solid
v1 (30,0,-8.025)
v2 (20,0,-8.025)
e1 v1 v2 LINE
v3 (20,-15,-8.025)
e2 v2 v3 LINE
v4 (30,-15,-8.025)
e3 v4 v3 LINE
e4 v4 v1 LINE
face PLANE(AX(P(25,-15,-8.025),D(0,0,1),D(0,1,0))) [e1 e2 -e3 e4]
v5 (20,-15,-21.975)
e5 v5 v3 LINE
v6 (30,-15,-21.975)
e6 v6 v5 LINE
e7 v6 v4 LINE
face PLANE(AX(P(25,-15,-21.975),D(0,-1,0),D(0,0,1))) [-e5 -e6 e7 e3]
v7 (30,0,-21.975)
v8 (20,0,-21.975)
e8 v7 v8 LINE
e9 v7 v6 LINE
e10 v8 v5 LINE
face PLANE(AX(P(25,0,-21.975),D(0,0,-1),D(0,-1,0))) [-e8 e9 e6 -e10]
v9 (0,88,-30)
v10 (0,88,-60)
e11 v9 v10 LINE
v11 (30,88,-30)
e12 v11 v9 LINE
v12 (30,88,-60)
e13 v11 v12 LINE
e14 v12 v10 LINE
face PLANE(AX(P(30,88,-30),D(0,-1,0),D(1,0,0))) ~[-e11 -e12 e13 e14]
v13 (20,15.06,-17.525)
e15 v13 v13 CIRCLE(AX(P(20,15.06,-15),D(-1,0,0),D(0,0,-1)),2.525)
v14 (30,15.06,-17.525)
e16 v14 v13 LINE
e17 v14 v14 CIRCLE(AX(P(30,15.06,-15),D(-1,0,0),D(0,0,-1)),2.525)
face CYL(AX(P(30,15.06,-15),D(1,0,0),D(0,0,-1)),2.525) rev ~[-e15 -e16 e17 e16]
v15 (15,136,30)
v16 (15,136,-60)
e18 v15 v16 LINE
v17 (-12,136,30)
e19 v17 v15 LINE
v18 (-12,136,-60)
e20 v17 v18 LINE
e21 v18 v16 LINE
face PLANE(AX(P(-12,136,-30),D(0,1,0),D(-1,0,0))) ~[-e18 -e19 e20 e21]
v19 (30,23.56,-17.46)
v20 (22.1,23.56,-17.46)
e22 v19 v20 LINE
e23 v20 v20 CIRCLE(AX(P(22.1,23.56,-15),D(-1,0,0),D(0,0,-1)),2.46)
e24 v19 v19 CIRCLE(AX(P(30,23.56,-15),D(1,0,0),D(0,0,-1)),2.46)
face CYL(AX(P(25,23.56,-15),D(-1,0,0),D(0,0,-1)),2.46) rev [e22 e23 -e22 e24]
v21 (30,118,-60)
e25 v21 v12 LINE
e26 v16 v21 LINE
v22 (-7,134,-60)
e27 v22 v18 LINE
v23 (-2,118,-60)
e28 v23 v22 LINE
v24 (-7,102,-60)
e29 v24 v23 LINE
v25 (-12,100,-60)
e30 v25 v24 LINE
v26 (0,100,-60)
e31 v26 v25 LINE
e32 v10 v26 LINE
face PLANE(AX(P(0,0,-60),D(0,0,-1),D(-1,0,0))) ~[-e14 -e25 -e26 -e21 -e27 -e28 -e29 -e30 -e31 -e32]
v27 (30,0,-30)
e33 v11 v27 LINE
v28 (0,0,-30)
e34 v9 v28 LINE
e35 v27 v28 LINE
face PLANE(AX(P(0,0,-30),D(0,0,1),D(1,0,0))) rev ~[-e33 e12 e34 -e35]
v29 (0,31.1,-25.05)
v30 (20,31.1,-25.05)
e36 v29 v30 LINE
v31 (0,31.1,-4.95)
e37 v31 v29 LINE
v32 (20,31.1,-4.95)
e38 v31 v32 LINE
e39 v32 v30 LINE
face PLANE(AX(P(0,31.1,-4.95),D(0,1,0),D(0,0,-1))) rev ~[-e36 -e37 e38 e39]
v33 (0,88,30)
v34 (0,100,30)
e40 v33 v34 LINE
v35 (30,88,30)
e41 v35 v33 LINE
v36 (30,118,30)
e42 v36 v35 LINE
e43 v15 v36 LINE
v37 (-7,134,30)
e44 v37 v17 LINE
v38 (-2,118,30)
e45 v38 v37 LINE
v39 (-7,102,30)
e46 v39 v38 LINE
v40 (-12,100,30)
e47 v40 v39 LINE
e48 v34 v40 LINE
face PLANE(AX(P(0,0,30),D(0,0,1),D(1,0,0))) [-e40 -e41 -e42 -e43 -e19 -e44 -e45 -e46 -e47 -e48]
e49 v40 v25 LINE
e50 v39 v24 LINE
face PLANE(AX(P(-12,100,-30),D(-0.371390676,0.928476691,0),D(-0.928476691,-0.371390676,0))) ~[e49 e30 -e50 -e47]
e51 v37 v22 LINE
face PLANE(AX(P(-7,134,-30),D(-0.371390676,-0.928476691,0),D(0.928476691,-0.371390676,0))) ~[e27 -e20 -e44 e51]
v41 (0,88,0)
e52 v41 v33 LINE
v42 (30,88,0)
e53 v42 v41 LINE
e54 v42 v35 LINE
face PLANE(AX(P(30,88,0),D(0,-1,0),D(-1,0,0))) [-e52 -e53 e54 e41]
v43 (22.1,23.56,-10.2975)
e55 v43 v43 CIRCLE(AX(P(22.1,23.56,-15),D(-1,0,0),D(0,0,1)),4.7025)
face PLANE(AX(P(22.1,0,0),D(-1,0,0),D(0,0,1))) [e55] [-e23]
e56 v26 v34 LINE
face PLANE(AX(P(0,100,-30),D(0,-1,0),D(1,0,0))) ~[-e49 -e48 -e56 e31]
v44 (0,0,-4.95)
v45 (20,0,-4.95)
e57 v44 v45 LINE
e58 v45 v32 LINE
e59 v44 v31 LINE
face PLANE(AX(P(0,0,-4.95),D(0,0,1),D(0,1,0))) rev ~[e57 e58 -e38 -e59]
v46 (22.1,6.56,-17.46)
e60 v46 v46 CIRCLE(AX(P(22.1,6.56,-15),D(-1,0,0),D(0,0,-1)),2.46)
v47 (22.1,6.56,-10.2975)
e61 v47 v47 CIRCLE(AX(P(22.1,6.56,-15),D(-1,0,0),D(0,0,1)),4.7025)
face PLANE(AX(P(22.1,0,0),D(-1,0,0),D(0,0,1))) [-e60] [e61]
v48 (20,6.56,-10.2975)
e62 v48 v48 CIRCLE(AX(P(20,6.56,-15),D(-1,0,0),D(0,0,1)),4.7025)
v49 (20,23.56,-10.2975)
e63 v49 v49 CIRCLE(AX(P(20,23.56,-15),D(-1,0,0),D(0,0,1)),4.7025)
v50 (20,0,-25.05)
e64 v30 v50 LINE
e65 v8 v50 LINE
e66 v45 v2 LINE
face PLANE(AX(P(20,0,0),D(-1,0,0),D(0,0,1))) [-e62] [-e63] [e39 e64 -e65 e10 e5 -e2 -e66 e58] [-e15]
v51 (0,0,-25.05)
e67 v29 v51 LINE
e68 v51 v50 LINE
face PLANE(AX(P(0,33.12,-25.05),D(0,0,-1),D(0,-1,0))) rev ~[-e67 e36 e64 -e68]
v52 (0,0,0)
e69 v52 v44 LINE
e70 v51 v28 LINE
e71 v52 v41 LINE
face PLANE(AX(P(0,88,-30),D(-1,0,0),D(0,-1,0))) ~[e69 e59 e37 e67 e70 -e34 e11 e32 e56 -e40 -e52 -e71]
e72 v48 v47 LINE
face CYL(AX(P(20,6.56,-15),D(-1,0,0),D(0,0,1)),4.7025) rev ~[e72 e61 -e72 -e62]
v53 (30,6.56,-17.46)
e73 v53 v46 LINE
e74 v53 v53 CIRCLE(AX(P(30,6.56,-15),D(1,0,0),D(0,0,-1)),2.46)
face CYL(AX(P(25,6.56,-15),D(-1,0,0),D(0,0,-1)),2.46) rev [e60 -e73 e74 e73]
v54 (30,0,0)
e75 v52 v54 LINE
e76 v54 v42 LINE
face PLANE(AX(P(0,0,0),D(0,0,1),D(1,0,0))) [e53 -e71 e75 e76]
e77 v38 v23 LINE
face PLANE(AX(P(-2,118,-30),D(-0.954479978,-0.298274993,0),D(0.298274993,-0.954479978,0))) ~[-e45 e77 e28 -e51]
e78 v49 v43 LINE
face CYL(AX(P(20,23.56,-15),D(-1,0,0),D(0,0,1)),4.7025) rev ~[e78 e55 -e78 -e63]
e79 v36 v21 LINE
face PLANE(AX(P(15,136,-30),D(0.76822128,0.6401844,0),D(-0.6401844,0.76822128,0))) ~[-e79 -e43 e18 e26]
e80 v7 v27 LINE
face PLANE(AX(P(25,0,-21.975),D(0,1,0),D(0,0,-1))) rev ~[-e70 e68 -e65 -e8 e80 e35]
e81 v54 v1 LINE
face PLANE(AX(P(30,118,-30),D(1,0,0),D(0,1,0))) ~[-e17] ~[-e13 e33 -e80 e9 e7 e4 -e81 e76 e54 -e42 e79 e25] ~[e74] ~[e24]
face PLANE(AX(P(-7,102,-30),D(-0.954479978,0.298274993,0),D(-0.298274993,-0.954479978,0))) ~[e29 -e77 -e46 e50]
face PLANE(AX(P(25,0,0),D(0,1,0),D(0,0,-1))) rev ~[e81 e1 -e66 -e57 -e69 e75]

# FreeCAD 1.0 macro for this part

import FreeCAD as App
import Part
import Sketcher
Q = App.Units.Quantity

doc = App.newDocument("Part")
body = doc.addObject("PartDesign::Body", "Body")

# Sketch on XY plane
sketch1 = body.newObject("Sketcher::SketchObject", "Sketch")
sketch1.AttachmentSupport = (doc.getObject("XY_Plane"), [""])
sketch1.MapMode = "FlatFace"
sketch1.addGeometry([
    Part.LineSegment(App.Vector(0, 40, 0), App.Vector(0, 0, 0)),
    Part.LineSegment(App.Vector(0, 0, 0), App.Vector(25, 0, 0)),
    Part.LineSegment(App.Vector(25, 0, 0), App.Vector(25, 40, 0)),
    Part.LineSegment(App.Vector(25, 40, 0), App.Vector(0, 40, 0)),
], False)
sketch1.addConstraint([
    Sketcher.Constraint("Coincident", 0, 2, 1, 1),
    Sketcher.Constraint("Coincident", 1, 2, 2, 1),
    Sketcher.Constraint("Coincident", 2, 2, 3, 1),
    Sketcher.Constraint("Coincident", 3, 2, 0, 1),
    Sketcher.Constraint("Vertical", 0),
    Sketcher.Constraint("Horizontal", 1),
    Sketcher.Constraint("Vertical", 2),
    Sketcher.Constraint("Horizontal", 3),
    Sketcher.Constraint("Coincident", 0, 2, -1, 1),
    Sketcher.Constraint("DistanceX", 1, 1, 1, 2, Q("25 mm")),
    Sketcher.Constraint("DistanceY", 0, 2, 0, 1, Q("40 mm")),
])
pad1 = body.newObject("PartDesign::Pad", "Pad")
pad1.Profile = sketch1
pad1.Length = 30
pad1.Reversed = True

# Sketch on YZ plane
sketch2 = body.newObject("Sketcher::SketchObject", "Sketch001")
sketch2.AttachmentSupport = (doc.getObject("YZ_Plane"), [""])
sketch2.MapMode = "FlatFace"
sketch2.AttachmentOffset = App.Placement(App.Vector(0, 0, 25), App.Rotation())
sketch2.addGeometry(Part.Circle(App.Vector(6.6, -15, 0), App.Vector(0, 0, 1), 2.5), False)
sketch2.addConstraint([
    Sketcher.Constraint("Diameter", 0, Q("4.92 mm")),
    Sketcher.Constraint("DistanceY", 0, 3, -1, 1, Q("15 mm")),
    Sketcher.Constraint("DistanceX", -1, 1, 0, 3, Q("6.56 mm")),
])
pocket1 = body.newObject("PartDesign::Pocket", "Pocket")
pocket1.Profile = sketch2
pocket1.Length = 30

# Sketch on YZ plane
sketch3 = body.newObject("Sketcher::SketchObject", "Sketch002")
sketch3.AttachmentSupport = (doc.getObject("YZ_Plane"), [""])
sketch3.MapMode = "FlatFace"
sketch3.addGeometry([
    Part.LineSegment(App.Vector(0, -25, 0), App.Vector(0, -5, 0)),
    Part.LineSegment(App.Vector(0, -5, 0), App.Vector(33, -5, 0)),
    Part.LineSegment(App.Vector(33, -5, 0), App.Vector(33, -25, 0)),
    Part.LineSegment(App.Vector(33, -25, 0), App.Vector(0, -25, 0)),
], False)
sketch3.addConstraint([
    Sketcher.Constraint("Coincident", 0, 2, 1, 1),
    Sketcher.Constraint("Coincident", 1, 2, 2, 1),
    Sketcher.Constraint("Coincident", 2, 2, 3, 1),
    Sketcher.Constraint("Coincident", 3, 2, 0, 1),
    Sketcher.Constraint("Vertical", 0),
    Sketcher.Constraint("Horizontal", 1),
    Sketcher.Constraint("Vertical", 2),
    Sketcher.Constraint("Horizontal", 3),
    Sketcher.Constraint("PointOnObject", 0, 2, -2),
    Sketcher.Constraint("DistanceY", 0, 1, 0, 2, Q("20.1 mm")),
    Sketcher.Constraint("DistanceX", 1, 1, 1, 2, Q("33.12 mm")),
    Sketcher.Constraint("DistanceY", 0, 2, -1, 1, Q("4.95 mm")),
])
pocket2 = body.newObject("PartDesign::Pocket", "Pocket001")
pocket2.Profile = sketch3
pocket2.Length = 20
pocket2.Reversed = True

# Sketch on XZ plane
sketch4 = body.newObject("Sketcher::SketchObject", "Sketch003")
sketch4.AttachmentSupport = (doc.getObject("XZ_Plane"), [""])
sketch4.MapMode = "FlatFace"
sketch4.addGeometry([
    Part.LineSegment(App.Vector(25, -8, 0), App.Vector(20, -8, 0)),
    Part.LineSegment(App.Vector(20, -8, 0), App.Vector(20, -22, 0)),
    Part.LineSegment(App.Vector(20, -22, 0), App.Vector(25, -22, 0)),
    Part.LineSegment(App.Vector(25, -22, 0), App.Vector(25, -8, 0)),
], False)
sketch4.addConstraint([
    Sketcher.Constraint("Coincident", 0, 2, 1, 1),
    Sketcher.Constraint("Coincident", 1, 2, 2, 1),
    Sketcher.Constraint("Coincident", 2, 2, 3, 1),
    Sketcher.Constraint("Coincident", 3, 2, 0, 1),
    Sketcher.Constraint("Horizontal", 0),
    Sketcher.Constraint("Vertical", 1),
    Sketcher.Constraint("Horizontal", 2),
    Sketcher.Constraint("Vertical", 3),
    Sketcher.Constraint("DistanceY", 1, 2, 1, 1, Q("13.95 mm")),
    Sketcher.Constraint("DistanceX", 0, 2, 0, 1, Q("5 mm")),
    Sketcher.Constraint("DistanceX", -1, 1, 0, 2, Q("20 mm")),
    Sketcher.Constraint("DistanceY", 0, 2, -1, 1, Q("8.025 mm")),
])
pad2 = body.newObject("PartDesign::Pad", "Pad001")
pad2.Profile = sketch4
pad2.Length = 15

# Sketch on YZ plane
sketch5 = body.newObject("Sketcher::SketchObject", "Sketch004")
sketch5.AttachmentSupport = (doc.getObject("YZ_Plane"), [""])
sketch5.MapMode = "FlatFace"
sketch5.AttachmentOffset = App.Placement(App.Vector(0, 0, 20), App.Rotation())
sketch5.addGeometry([
    Part.Circle(App.Vector(6.6, -15, 0), App.Vector(0, 0, 1), 4.7),
    Part.Circle(App.Vector(6.6, -15, 0), App.Vector(0, 0, 1), 2.5),
], False)
sketch5.addConstraint([
    Sketcher.Constraint("Coincident", 1, 3, 0, 3),
    Sketcher.Constraint("Diameter", 0, Q("9.405 mm")),
    Sketcher.Constraint("Diameter", 1, Q("4.92 mm")),
    Sketcher.Constraint("DistanceY", 0, 3, -1, 1, Q("15 mm")),
    Sketcher.Constraint("DistanceX", -1, 1, 0, 3, Q("6.56 mm")),
])
pocket3 = body.newObject("PartDesign::Pocket", "Pocket002")
pocket3.Profile = sketch5
pocket3.Length = 2.1
pocket3.Reversed = True

# Sketch on YZ plane
sketch6 = body.newObject("Sketcher::SketchObject", "Sketch005")
sketch6.AttachmentSupport = (doc.getObject("YZ_Plane"), [""])
sketch6.MapMode = "FlatFace"
sketch6.AttachmentOffset = App.Placement(App.Vector(0, 0, 25), App.Rotation())
sketch6.addGeometry(Part.Circle(App.Vector(23.6, -15, 0), App.Vector(0, 0, 1), 2.5), False)
sketch6.addConstraint([
    Sketcher.Constraint("Diameter", 0, Q("4.92 mm")),
    Sketcher.Constraint("DistanceY", 0, 3, -1, 1, Q("15 mm")),
    Sketcher.Constraint("DistanceX", -1, 1, 0, 3, Q("23.56 mm")),
])
pocket4 = body.newObject("PartDesign::Pocket", "Pocket003")
pocket4.Profile = sketch6
pocket4.Length = 10

# Sketch on YZ plane
sketch7 = body.newObject("Sketcher::SketchObject", "Sketch006")
sketch7.AttachmentSupport = (doc.getObject("YZ_Plane"), [""])
sketch7.MapMode = "FlatFace"
sketch7.AttachmentOffset = App.Placement(App.Vector(0, 0, 20), App.Rotation())
sketch7.addGeometry([
    Part.Circle(App.Vector(23.6, -15, 0), App.Vector(0, 0, 1), 4.7),
    Part.Circle(App.Vector(23.6, -15, 0), App.Vector(0, 0, 1), 2.5),
], False)
sketch7.addConstraint([
    Sketcher.Constraint("Coincident", 1, 3, 0, 3),
    Sketcher.Constraint("Diameter", 0, Q("9.405 mm")),
    Sketcher.Constraint("Diameter", 1, Q("4.92 mm")),
    Sketcher.Constraint("DistanceY", 0, 3, -1, 1, Q("15 mm")),
    Sketcher.Constraint("DistanceX", -1, 1, 0, 3, Q("23.56 mm")),
])
pocket5 = body.newObject("PartDesign::Pocket", "Pocket004")
pocket5.Profile = sketch7
pocket5.Length = 2.1
pocket5.Reversed = True

# Sketch on YZ plane
sketch8 = body.newObject("Sketcher::SketchObject", "Sketch007")
sketch8.AttachmentSupport = (doc.getObject("YZ_Plane"), [""])
sketch8.MapMode = "FlatFace"
sketch8.AttachmentOffset = App.Placement(App.Vector(0, 0, 25), App.Rotation())
sketch8.addGeometry([
    Part.LineSegment(App.Vector(0, -30, 0), App.Vector(40, -30, 0)),  # 0
    Part.LineSegment(App.Vector(40, -30, 0), App.Vector(40, 0, 0)),  # 1
    Part.LineSegment(App.Vector(40, 0, 0), App.Vector(0, 0, 0)),  # 2
    Part.LineSegment(App.Vector(0, 0, 0), App.Vector(0, -8, 0)),  # 3
    Part.LineSegment(App.Vector(0, -8, 0), App.Vector(-15, -8, 0)),  # 4
    Part.LineSegment(App.Vector(-15, -8, 0), App.Vector(-15, -22, 0)),  # 5
    Part.LineSegment(App.Vector(-15, -22, 0), App.Vector(0, -22, 0)),  # 6
    Part.LineSegment(App.Vector(0, -22, 0), App.Vector(0, -30, 0)),  # 7
    Part.Circle(App.Vector(6.6, -15, 0), App.Vector(0, 0, 1), 2.5),  # 8
    Part.Circle(App.Vector(23.6, -15, 0), App.Vector(0, 0, 1), 2.5),  # 9
], False)
sketch8.addConstraint([
    Sketcher.Constraint("Coincident", 0, 2, 1, 1),
    Sketcher.Constraint("Coincident", 1, 2, 2, 1),
    Sketcher.Constraint("Coincident", 2, 2, 3, 1),
    Sketcher.Constraint("Coincident", 3, 2, 4, 1),
    Sketcher.Constraint("Coincident", 4, 2, 5, 1),
    Sketcher.Constraint("Coincident", 5, 2, 6, 1),
    Sketcher.Constraint("Coincident", 6, 2, 7, 1),
    Sketcher.Constraint("Coincident", 7, 2, 0, 1),
    Sketcher.Constraint("Horizontal", 0),
    Sketcher.Constraint("Vertical", 1),
    Sketcher.Constraint("Horizontal", 2),
    Sketcher.Constraint("Vertical", 3),
    Sketcher.Constraint("Horizontal", 4),
    Sketcher.Constraint("Vertical", 5),
    Sketcher.Constraint("Horizontal", 6),
    Sketcher.Constraint("Vertical", 7),
    Sketcher.Constraint("Coincident", 2, 2, -1, 1),
    Sketcher.Constraint("Equal", 8, 9),
    Sketcher.Constraint("PointOnObject", 6, 2, -2),
    Sketcher.Constraint("Horizontal", 8, 3, 9, 3),
    Sketcher.Constraint("Equal", 3, 7),
    Sketcher.Constraint("Diameter", 8, Q("4.92 mm")),
    Sketcher.Constraint("DistanceX", 0, 1, 0, 2, Q("40 mm")),
    Sketcher.Constraint("DistanceX", 4, 2, 4, 1, Q("15 mm")),
    Sketcher.Constraint("DistanceY", 1, 1, 1, 2, Q("30 mm")),
    Sketcher.Constraint("DistanceY", 8, 3, -1, 1, Q("15 mm")),
    Sketcher.Constraint("DistanceX", 8, 3, 9, 3, Q("17 mm")),
    Sketcher.Constraint("DistanceY", 5, 2, 5, 1, Q("13.95 mm")),
    Sketcher.Constraint("DistanceX", -1, 1, 8, 3, Q("6.56 mm")),
])
pad3 = body.newObject("PartDesign::Pad", "Pad002")
pad3.Profile = sketch8
pad3.Length = 5

# Sketch on XZ plane
sketch9 = body.newObject("Sketcher::SketchObject", "Sketch008")
sketch9.AttachmentSupport = (doc.getObject("XZ_Plane"), [""])
sketch9.MapMode = "FlatFace"
sketch9.AttachmentOffset = App.Placement(App.Vector(0, 0, -40), App.Rotation())
sketch9.addGeometry([
    Part.LineSegment(App.Vector(30, -30, 0), App.Vector(0, -30, 0)),
    Part.LineSegment(App.Vector(0, -30, 0), App.Vector(0, 0, 0)),
    Part.LineSegment(App.Vector(0, 0, 0), App.Vector(30, 0, 0)),
    Part.LineSegment(App.Vector(30, 0, 0), App.Vector(30, -30, 0)),
], False)
sketch9.addConstraint([
    Sketcher.Constraint("Coincident", 0, 2, 1, 1),
    Sketcher.Constraint("Coincident", 1, 2, 2, 1),
    Sketcher.Constraint("Coincident", 2, 2, 3, 1),
    Sketcher.Constraint("Coincident", 3, 2, 0, 1),
    Sketcher.Constraint("Horizontal", 0),
    Sketcher.Constraint("Vertical", 1),
    Sketcher.Constraint("Horizontal", 2),
    Sketcher.Constraint("Vertical", 3),
    Sketcher.Constraint("Coincident", 1, 2, -1, 1),
    Sketcher.Constraint("Equal", 2, 1),
    Sketcher.Constraint("DistanceX", 0, 2, 0, 1, Q("30 mm")),
])
pad4 = body.newObject("PartDesign::Pad", "Pad003")
pad4.Profile = sketch9
pad4.Length = 30
pad4.Reversed = True

# Sketch on YZ plane
sketch10 = body.newObject("Sketcher::SketchObject", "Sketch009")
sketch10.AttachmentSupport = (doc.getObject("YZ_Plane"), [""])
sketch10.MapMode = "FlatFace"
sketch10.AttachmentOffset = App.Placement(App.Vector(0, 0, 30), App.Rotation())
sketch10.addGeometry(Part.Circle(App.Vector(15.1, -15, 0), App.Vector(0, 0, 1), 2.5), False)
sketch10.addConstraint([
    Sketcher.Constraint("Diameter", 0, Q("5.05 mm")),
    Sketcher.Constraint("DistanceY", 0, 3, -1, 1, Q("15 mm")),
    Sketcher.Constraint("DistanceX", -1, 1, 0, 3, Q("15.06 mm")),
])
pocket6 = body.newObject("PartDesign::Pocket", "Pocket005")
pocket6.Profile = sketch10
pocket6.Length = 30

# Sketch on XY plane
sketch11 = body.newObject("Sketcher::SketchObject", "Sketch010")
sketch11.AttachmentSupport = (doc.getObject("XY_Plane"), [""])
sketch11.MapMode = "FlatFace"
sketch11.addGeometry([
    Part.LineSegment(App.Vector(0, 70, 0), App.Vector(30, 70, 0)),  # 0
    Part.LineSegment(App.Vector(30, 70, 0), App.Vector(30, 118, 0)),  # 1
    Part.LineSegment(App.Vector(30, 118, 0), App.Vector(15, 136, 0)),  # 2
    Part.LineSegment(App.Vector(15, 136, 0), App.Vector(-12, 136, 0)),  # 3
    Part.LineSegment(App.Vector(-12, 136, 0), App.Vector(-7, 134, 0)),  # 4
    Part.LineSegment(App.Vector(-7, 134, 0), App.Vector(-2, 118, 0)),  # 5
    Part.LineSegment(App.Vector(-2, 118, 0), App.Vector(-7, 102, 0)),  # 6
    Part.LineSegment(App.Vector(-7, 102, 0), App.Vector(-12, 100, 0)),  # 7
    Part.LineSegment(App.Vector(-12, 100, 0), App.Vector(0, 100, 0)),  # 8
    Part.LineSegment(App.Vector(0, 100, 0), App.Vector(0, 70, 0)),  # 9
], False)
sketch11.addConstraint([
    Sketcher.Constraint("Coincident", 0, 2, 1, 1),
    Sketcher.Constraint("Coincident", 1, 2, 2, 1),
    Sketcher.Constraint("Coincident", 2, 2, 3, 1),
    Sketcher.Constraint("Coincident", 3, 2, 4, 1),
    Sketcher.Constraint("Coincident", 4, 2, 5, 1),
    Sketcher.Constraint("Coincident", 5, 2, 6, 1),
    Sketcher.Constraint("Coincident", 6, 2, 7, 1),
    Sketcher.Constraint("Coincident", 7, 2, 8, 1),
    Sketcher.Constraint("Coincident", 8, 2, 9, 1),
    Sketcher.Constraint("Coincident", 9, 2, 0, 1),
    Sketcher.Constraint("Horizontal", 0),
    Sketcher.Constraint("Vertical", 1),
    Sketcher.Constraint("Horizontal", 3),
    Sketcher.Constraint("Horizontal", 8),
    Sketcher.Constraint("Vertical", 9),
    Sketcher.Constraint("PointOnObject", 8, 2, -2),
    Sketcher.Constraint("Horizontal", 1, 2, 5, 2),
    Sketcher.Constraint("Vertical", 4, 2, 6, 2),
    Sketcher.Constraint("Vertical", 3, 2, 7, 2),
    Sketcher.Constraint("Equal", 0, 9),
    Sketcher.Constraint("Equal", 5, 6),
    Sketcher.Constraint("Equal", 4, 7),
    Sketcher.Constraint("DistanceX", 8, 1, 8, 2, Q("12 mm")),
    Sketcher.Constraint("DistanceX", 0, 1, 0, 2, Q("30 mm")),
    Sketcher.Constraint("DistanceX", 3, 2, 3, 1, Q("27 mm")),
    Sketcher.Constraint("DistanceY", 1, 1, 1, 2, Q("48 mm")),
    Sketcher.Constraint("DistanceY", -1, 1, 0, 2, Q("70 mm")),
    Sketcher.Constraint("DistanceX", 4, 2, -1, 1, Q("7 mm")),
    Sketcher.Constraint("DistanceY", -1, 1, 4, 2, Q("134 mm")),
    Sketcher.Constraint("DistanceX", 5, 2, -1, 1, Q("2 mm")),
])
pad5 = body.newObject("PartDesign::Pad", "Pad004")
pad5.Profile = sketch11
pad5.Length = 30
pad5.Reversed = True

# Sketch on YZ plane
sketch12 = body.newObject("Sketcher::SketchObject", "Sketch011")
sketch12.AttachmentSupport = (doc.getObject("YZ_Plane"), [""])
sketch12.MapMode = "FlatFace"
sketch12.addGeometry([
    Part.LineSegment(App.Vector(33.1, -5, 0), App.Vector(33.1, -25.1, 0)),
    Part.LineSegment(App.Vector(33.1, -25.1, 0), App.Vector(31.1, -25.1, 0)),
    Part.LineSegment(App.Vector(31.1, -25.1, 0), App.Vector(31.1, -5, 0)),
    Part.LineSegment(App.Vector(31.1, -5, 0), App.Vector(33.1, -5, 0)),
], False)
sketch12.addConstraint([
    Sketcher.Constraint("Coincident", 0, 2, 1, 1),
    Sketcher.Constraint("Coincident", 1, 2, 2, 1),
    Sketcher.Constraint("Coincident", 2, 2, 3, 1),
    Sketcher.Constraint("Coincident", 3, 2, 0, 1),
    Sketcher.Constraint("Vertical", 0),
    Sketcher.Constraint("Horizontal", 1),
    Sketcher.Constraint("Vertical", 2),
    Sketcher.Constraint("Horizontal", 3),
    Sketcher.Constraint("DistanceX", 1, 2, 1, 1, Q("2.02 mm")),
    Sketcher.Constraint("DistanceY", 0, 2, 0, 1, Q("20.1 mm")),
    Sketcher.Constraint("DistanceX", -1, 1, 1, 2, Q("31.1 mm")),
    Sketcher.Constraint("DistanceY", 0, 2, -1, 1, Q("25.05 mm")),
])
pad6 = body.newObject("PartDesign::Pad", "Pad005")
pad6.Profile = sketch12
pad6.Length = 20

# Sketch on XY plane
sketch13 = body.newObject("Sketcher::SketchObject", "Sketch012")
sketch13.AttachmentSupport = (doc.getObject("XY_Plane"), [""])
sketch13.MapMode = "FlatFace"
sketch13.addGeometry([
    Part.LineSegment(App.Vector(-12, 100, 0), App.Vector(0, 100, 0)),  # 0
    Part.LineSegment(App.Vector(0, 100, 0), App.Vector(0, 88, 0)),  # 1
    Part.LineSegment(App.Vector(0, 88, 0), App.Vector(30, 88, 0)),  # 2
    Part.LineSegment(App.Vector(30, 88, 0), App.Vector(30, 118, 0)),  # 3
    Part.LineSegment(App.Vector(30, 118, 0), App.Vector(15, 136, 0)),  # 4
    Part.LineSegment(App.Vector(15, 136, 0), App.Vector(-12, 136, 0)),  # 5
    Part.LineSegment(App.Vector(-12, 136, 0), App.Vector(-7, 134, 0)),  # 6
    Part.LineSegment(App.Vector(-7, 134, 0), App.Vector(-2, 118, 0)),  # 7
    Part.LineSegment(App.Vector(-2, 118, 0), App.Vector(-7, 102, 0)),  # 8
    Part.LineSegment(App.Vector(-7, 102, 0), App.Vector(-12, 100, 0)),  # 9
], False)
sketch13.addConstraint([
    Sketcher.Constraint("Coincident", 0, 2, 1, 1),
    Sketcher.Constraint("Coincident", 1, 2, 2, 1),
    Sketcher.Constraint("Coincident", 2, 2, 3, 1),
    Sketcher.Constraint("Coincident", 3, 2, 4, 1),
    Sketcher.Constraint("Coincident", 4, 2, 5, 1),
    Sketcher.Constraint("Coincident", 5, 2, 6, 1),
    Sketcher.Constraint("Coincident", 6, 2, 7, 1),
    Sketcher.Constraint("Coincident", 7, 2, 8, 1),
    Sketcher.Constraint("Coincident", 8, 2, 9, 1),
    Sketcher.Constraint("Coincident", 9, 2, 0, 1),
    Sketcher.Constraint("Horizontal", 0),
    Sketcher.Constraint("Vertical", 1),
    Sketcher.Constraint("Horizontal", 2),
    Sketcher.Constraint("Vertical", 3),
    Sketcher.Constraint("Horizontal", 5),
    Sketcher.Constraint("PointOnObject", 0, 2, -2),
    Sketcher.Constraint("Horizontal", 3, 2, 7, 2),
    Sketcher.Constraint("Vertical", 6, 2, 8, 2),
    Sketcher.Constraint("Vertical", 5, 2, 9, 2),
    Sketcher.Constraint("Equal", 0, 1),
    Sketcher.Constraint("Equal", 2, 3),
    Sketcher.Constraint("Equal", 7, 8),
    Sketcher.Constraint("Equal", 6, 9),
    Sketcher.Constraint("DistanceX", 2, 1, 2, 2, Q("30 mm")),
    Sketcher.Constraint("DistanceX", 0, 1, 0, 2, Q("12 mm")),
    Sketcher.Constraint("DistanceX", 5, 2, 5, 1, Q("27 mm")),
    Sketcher.Constraint("DistanceY", -1, 1, 0, 2, Q("100 mm")),
    Sketcher.Constraint("DistanceX", 6, 2, -1, 1, Q("7 mm")),
    Sketcher.Constraint("DistanceY", -1, 1, 6, 2, Q("134 mm")),
    Sketcher.Constraint("DistanceX", 7, 2, -1, 1, Q("2 mm")),
])
pad7 = body.newObject("PartDesign::Pad", "Pad006")
pad7.Profile = sketch13
pad7.Length = 30
doc.recompute()

datumplane = body.newObject("PartDesign::Plane", "DatumPlane")
datumplane.AttachmentSupport = (doc.getObject("XY_Plane"), [""])
datumplane.MapMode = "FlatFace"
datumplane.AttachmentOffset = App.Placement(App.Vector(0, 0, -15), App.Rotation())
mirrored = body.newObject("PartDesign::Mirrored", "Mirrored")
mirrored.Originals = [pad7]
mirrored.MirrorPlane = (datumplane, [""])
body.Tip = mirrored

doc.recompute()
